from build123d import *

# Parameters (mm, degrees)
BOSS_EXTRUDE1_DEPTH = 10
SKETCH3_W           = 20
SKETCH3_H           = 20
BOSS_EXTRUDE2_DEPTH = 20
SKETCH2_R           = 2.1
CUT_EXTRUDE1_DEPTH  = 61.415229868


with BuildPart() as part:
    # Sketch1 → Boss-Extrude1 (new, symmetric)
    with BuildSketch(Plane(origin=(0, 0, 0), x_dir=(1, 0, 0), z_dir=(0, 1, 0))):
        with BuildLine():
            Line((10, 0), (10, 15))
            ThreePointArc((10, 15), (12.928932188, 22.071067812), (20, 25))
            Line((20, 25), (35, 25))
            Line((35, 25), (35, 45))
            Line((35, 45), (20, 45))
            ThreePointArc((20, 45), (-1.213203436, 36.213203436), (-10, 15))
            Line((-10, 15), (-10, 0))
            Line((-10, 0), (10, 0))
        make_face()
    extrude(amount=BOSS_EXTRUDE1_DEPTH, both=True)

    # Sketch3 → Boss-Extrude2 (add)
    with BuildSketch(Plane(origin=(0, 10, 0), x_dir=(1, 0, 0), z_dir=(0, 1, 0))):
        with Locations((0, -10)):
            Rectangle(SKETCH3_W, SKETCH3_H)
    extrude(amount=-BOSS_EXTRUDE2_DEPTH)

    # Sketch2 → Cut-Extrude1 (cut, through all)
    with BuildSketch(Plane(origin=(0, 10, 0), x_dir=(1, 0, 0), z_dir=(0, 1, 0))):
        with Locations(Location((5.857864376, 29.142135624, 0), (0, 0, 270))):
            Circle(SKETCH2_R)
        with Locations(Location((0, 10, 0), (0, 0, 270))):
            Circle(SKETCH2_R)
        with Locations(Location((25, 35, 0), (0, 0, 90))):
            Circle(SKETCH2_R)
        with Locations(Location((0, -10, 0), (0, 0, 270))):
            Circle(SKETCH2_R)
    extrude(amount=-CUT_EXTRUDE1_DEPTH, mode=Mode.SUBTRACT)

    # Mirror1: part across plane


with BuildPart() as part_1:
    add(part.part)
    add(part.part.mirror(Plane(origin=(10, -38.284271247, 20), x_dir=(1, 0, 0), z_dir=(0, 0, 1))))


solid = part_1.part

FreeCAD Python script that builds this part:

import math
import FreeCAD as App
import Part
import Sketcher
from FreeCAD import Vector
Q = App.Units.Quantity

doc = App.newDocument("Part")
params = doc.addObject("Spreadsheet::Sheet", "Params")
for row, (alias, value) in enumerate([
    ("sketch1_radius", "10 mm"),
    ("sketch1_radius2", "30 mm"),
    ("sketch1_width", "15 mm"),
    ("pad1_length", "20 mm"),
    ("sketch2_width", "20 mm"),
    ("pad2_length", "20 mm"),
    ("sketch3_diameter", "4.2 mm"),
], start=1):
    params.set(f"A{row}", alias)
    params.set(f"B{row}", "=" + value)
    params.setAlias(f"B{row}", alias)

body = doc.addObject("PartDesign::Body", "Body")

sketch1 = body.newObject("Sketcher::SketchObject", "Sketch")
sketch1.AttachmentSupport = (doc.getObject("XZ_Plane"), [""])
sketch1.MapMode = "FlatFace"
sketch1.addGeometry(Part.LineSegment(Vector(10, 0, 0), Vector(10, -15, 0)), False)
sketch1.addGeometry(Part.ArcOfCircle(Part.Circle(Vector(20, -15, 0), Vector(0, 0, 1), 10), math.radians(180), math.radians(270)), False)
sketch1.addGeometry(Part.LineSegment(Vector(20, -25, 0), Vector(35, -25, 0)), False)
sketch1.addGeometry(Part.LineSegment(Vector(35, -25, 0), Vector(35, -45, 0)), False)
sketch1.addGeometry(Part.LineSegment(Vector(35, -45, 0), Vector(20, -45, 0)), False)
sketch1.addGeometry(Part.ArcOfCircle(Part.Circle(Vector(20, -15, 0), Vector(0, 0, 1), 30), math.radians(180), math.radians(270)), False)
sketch1.addGeometry(Part.LineSegment(Vector(-10, -15, 0), Vector(-10, 0, 0)), False)
sketch1.addGeometry(Part.LineSegment(Vector(-10, 0, 0), Vector(10, 0, 0)), False)
sketch1.addConstraint(Sketcher.Constraint("Tangent", 0, 2, 1, 1))
sketch1.addConstraint(Sketcher.Constraint("Tangent", 1, 2, 2, 1))
sketch1.addConstraint(Sketcher.Constraint("Coincident", 2, 2, 3, 1))
sketch1.addConstraint(Sketcher.Constraint("Coincident", 3, 2, 4, 1))
sketch1.addConstraint(Sketcher.Constraint("Tangent", 4, 2, 5, 2))
sketch1.addConstraint(Sketcher.Constraint("Tangent", 5, 1, 6, 1))
sketch1.addConstraint(Sketcher.Constraint("Coincident", 6, 2, 7, 1))
sketch1.addConstraint(Sketcher.Constraint("Coincident", 7, 2, 0, 1))
sketch1.addConstraint(Sketcher.Constraint("Vertical", 0))
sketch1.addConstraint(Sketcher.Constraint("Horizontal", 2))
sketch1.addConstraint(Sketcher.Constraint("Vertical", 3))
sketch1.addConstraint(Sketcher.Constraint("Horizontal", 4))
sketch1.addConstraint(Sketcher.Constraint("Vertical", 6))
sketch1.addConstraint(Sketcher.Constraint("Horizontal", 7))
sketch1.addConstraint(Sketcher.Constraint("Coincident", 5, 3, 1, 3))
sketch1.addConstraint(Sketcher.Constraint("Symmetric", 6, 2, 7, 2, -1, 1))
sketch1.addConstraint(Sketcher.Constraint("Equal", 4, 0))
sketch1.addConstraint(Sketcher.Constraint("Radius", 1, Q("10 mm")))
sketch1.addConstraint(Sketcher.Constraint("Radius", 5, Q("30 mm")))
sketch1.addConstraint(Sketcher.Constraint("DistanceX", 2, 1, 2, 2, Q("15 mm")))
sketch1.setExpression("Constraints[17]", "Params.sketch1_radius")
sketch1.setExpression("Constraints[18]", "Params.sketch1_radius2")
sketch1.setExpression("Constraints[19]", "Params.sketch1_width")
pad1 = body.newObject("PartDesign::Pad", "Pad")
pad1.Profile = sketch1
pad1.setExpression("Length", "Params.pad1_length")
pad1.Midplane = True

sketch2 = body.newObject("Sketcher::SketchObject", "Sketch001")
sketch2.AttachmentSupport = (doc.getObject("XZ_Plane"), [""])
sketch2.MapMode = "FlatFace"
sketch2.AttachmentOffset = App.Placement(Vector(0, 0, -10), App.Rotation())
sketch2.addGeometry(Part.LineSegment(Vector(-10, 0, 0), Vector(-10, 20, 0)), False)
sketch2.addGeometry(Part.LineSegment(Vector(-10, 20, 0), Vector(10, 20, 0)), False)
sketch2.addGeometry(Part.LineSegment(Vector(10, 20, 0), Vector(10, 0, 0)), False)
sketch2.addGeometry(Part.LineSegment(Vector(10, 0, 0), Vector(-10, 0, 0)), False)
sketch2.addConstraint(Sketcher.Constraint("Coincident", 0, 2, 1, 1))
sketch2.addConstraint(Sketcher.Constraint("Coincident", 1, 2, 2, 1))
sketch2.addConstraint(Sketcher.Constraint("Coincident", 2, 2, 3, 1))
sketch2.addConstraint(Sketcher.Constraint("Coincident", 3, 2, 0, 1))
sketch2.addConstraint(Sketcher.Constraint("Vertical", 0))
sketch2.addConstraint(Sketcher.Constraint("Horizontal", 1))
sketch2.addConstraint(Sketcher.Constraint("Vertical", 2))
sketch2.addConstraint(Sketcher.Constraint("Horizontal", 3))
sketch2.addConstraint(Sketcher.Constraint("Symmetric", 2, 2, 3, 2, -1, 1))
sketch2.addConstraint(Sketcher.Constraint("Equal", 3, 0))
sketch2.addConstraint(Sketcher.Constraint("DistanceX", 1, 1, 1, 2, Q("20 mm")))
sketch2.setExpression("Constraints[10]", "Params.sketch2_width")
pad2 = body.newObject("PartDesign::Pad", "Pad001")
pad2.Profile = sketch2
pad2.setExpression("Length", "Params.pad2_length")

sketch3 = body.newObject("Sketcher::SketchObject", "Sketch002")
sketch3.AttachmentSupport = (doc.getObject("XZ_Plane"), [""])
sketch3.MapMode = "FlatFace"
sketch3.AttachmentOffset = App.Placement(Vector(0, 0, -10), App.Rotation())
sketch3.addGeometry(Part.Circle(Vector(5.9, -29.1, 0), Vector(0, 0, 1), 2.1), False)
sketch3.addGeometry(Part.Circle(Vector(0, -10, 0), Vector(0, 0, 1), 2.1), False)
sketch3.addGeometry(Part.Circle(Vector(25, -35, 0), Vector(0, 0, 1), 2.1), False)
sketch3.addGeometry(Part.Circle(Vector(0, 10, 0), Vector(0, 0, 1), 2.1), False)
sketch3.addConstraint(Sketcher.Constraint("Equal", 0, 1))
sketch3.addConstraint(Sketcher.Constraint("Equal", 1, 2))
sketch3.addConstraint(Sketcher.Constraint("Equal", 2, 3))
sketch3.addConstraint(Sketcher.Constraint("Symmetric", 1, 3, 3, 3, -1, 1))
sketch3.addConstraint(Sketcher.Constraint("PointOnObject", 1, 3, -2))
sketch3.addConstraint(Sketcher.Constraint("Diameter", 0, Q("4.2 mm")))
sketch3.addConstraint(Sketcher.Constraint("DistanceY", 1, 3, -1, 1, Q("10 mm")))
sketch3.addConstraint(Sketcher.Constraint("DistanceX", -1, 1, 2, 3, Q("25 mm")))
sketch3.addConstraint(Sketcher.Constraint("DistanceY", 2, 3, -1, 1, Q("35 mm")))
sketch3.addConstraint(Sketcher.Constraint("DistanceX", -1, 1, 0, 3, Q("5.857864 mm")))
sketch3.addConstraint(Sketcher.Constraint("DistanceY", 0, 3, -1, 1, Q("29.142136 mm")))
sketch3.setExpression("Constraints[5]", "Params.sketch3_diameter")
pocket1 = body.newObject("PartDesign::Pocket", "Pocket")
pocket1.Profile = sketch3
pocket1.Type = "ThroughAll"
pocket1.Reversed = True
body2 = doc.addObject("PartDesign::Body", "Body001")
doc.recompute()

body2.BaseFeature = body
doc.recompute()

mirroring = doc.addObject("Part::Mirroring", "Mirroring")
mirroring.Source = body
mirroring.Base = Vector(10, -38.284271, 20)
mirroring.Normal = Vector(0, 0, 1)
body3 = doc.addObject("PartDesign::Body", "Body002")
body3.BaseFeature = mirroring
boolean = body2.newObject("PartDesign::Boolean", "Boolean")
boolean.Type = "Fuse"
boolean.addObjects([body3])
doc.recompute()
mirroring.Visibility = False

doc.recompute()
